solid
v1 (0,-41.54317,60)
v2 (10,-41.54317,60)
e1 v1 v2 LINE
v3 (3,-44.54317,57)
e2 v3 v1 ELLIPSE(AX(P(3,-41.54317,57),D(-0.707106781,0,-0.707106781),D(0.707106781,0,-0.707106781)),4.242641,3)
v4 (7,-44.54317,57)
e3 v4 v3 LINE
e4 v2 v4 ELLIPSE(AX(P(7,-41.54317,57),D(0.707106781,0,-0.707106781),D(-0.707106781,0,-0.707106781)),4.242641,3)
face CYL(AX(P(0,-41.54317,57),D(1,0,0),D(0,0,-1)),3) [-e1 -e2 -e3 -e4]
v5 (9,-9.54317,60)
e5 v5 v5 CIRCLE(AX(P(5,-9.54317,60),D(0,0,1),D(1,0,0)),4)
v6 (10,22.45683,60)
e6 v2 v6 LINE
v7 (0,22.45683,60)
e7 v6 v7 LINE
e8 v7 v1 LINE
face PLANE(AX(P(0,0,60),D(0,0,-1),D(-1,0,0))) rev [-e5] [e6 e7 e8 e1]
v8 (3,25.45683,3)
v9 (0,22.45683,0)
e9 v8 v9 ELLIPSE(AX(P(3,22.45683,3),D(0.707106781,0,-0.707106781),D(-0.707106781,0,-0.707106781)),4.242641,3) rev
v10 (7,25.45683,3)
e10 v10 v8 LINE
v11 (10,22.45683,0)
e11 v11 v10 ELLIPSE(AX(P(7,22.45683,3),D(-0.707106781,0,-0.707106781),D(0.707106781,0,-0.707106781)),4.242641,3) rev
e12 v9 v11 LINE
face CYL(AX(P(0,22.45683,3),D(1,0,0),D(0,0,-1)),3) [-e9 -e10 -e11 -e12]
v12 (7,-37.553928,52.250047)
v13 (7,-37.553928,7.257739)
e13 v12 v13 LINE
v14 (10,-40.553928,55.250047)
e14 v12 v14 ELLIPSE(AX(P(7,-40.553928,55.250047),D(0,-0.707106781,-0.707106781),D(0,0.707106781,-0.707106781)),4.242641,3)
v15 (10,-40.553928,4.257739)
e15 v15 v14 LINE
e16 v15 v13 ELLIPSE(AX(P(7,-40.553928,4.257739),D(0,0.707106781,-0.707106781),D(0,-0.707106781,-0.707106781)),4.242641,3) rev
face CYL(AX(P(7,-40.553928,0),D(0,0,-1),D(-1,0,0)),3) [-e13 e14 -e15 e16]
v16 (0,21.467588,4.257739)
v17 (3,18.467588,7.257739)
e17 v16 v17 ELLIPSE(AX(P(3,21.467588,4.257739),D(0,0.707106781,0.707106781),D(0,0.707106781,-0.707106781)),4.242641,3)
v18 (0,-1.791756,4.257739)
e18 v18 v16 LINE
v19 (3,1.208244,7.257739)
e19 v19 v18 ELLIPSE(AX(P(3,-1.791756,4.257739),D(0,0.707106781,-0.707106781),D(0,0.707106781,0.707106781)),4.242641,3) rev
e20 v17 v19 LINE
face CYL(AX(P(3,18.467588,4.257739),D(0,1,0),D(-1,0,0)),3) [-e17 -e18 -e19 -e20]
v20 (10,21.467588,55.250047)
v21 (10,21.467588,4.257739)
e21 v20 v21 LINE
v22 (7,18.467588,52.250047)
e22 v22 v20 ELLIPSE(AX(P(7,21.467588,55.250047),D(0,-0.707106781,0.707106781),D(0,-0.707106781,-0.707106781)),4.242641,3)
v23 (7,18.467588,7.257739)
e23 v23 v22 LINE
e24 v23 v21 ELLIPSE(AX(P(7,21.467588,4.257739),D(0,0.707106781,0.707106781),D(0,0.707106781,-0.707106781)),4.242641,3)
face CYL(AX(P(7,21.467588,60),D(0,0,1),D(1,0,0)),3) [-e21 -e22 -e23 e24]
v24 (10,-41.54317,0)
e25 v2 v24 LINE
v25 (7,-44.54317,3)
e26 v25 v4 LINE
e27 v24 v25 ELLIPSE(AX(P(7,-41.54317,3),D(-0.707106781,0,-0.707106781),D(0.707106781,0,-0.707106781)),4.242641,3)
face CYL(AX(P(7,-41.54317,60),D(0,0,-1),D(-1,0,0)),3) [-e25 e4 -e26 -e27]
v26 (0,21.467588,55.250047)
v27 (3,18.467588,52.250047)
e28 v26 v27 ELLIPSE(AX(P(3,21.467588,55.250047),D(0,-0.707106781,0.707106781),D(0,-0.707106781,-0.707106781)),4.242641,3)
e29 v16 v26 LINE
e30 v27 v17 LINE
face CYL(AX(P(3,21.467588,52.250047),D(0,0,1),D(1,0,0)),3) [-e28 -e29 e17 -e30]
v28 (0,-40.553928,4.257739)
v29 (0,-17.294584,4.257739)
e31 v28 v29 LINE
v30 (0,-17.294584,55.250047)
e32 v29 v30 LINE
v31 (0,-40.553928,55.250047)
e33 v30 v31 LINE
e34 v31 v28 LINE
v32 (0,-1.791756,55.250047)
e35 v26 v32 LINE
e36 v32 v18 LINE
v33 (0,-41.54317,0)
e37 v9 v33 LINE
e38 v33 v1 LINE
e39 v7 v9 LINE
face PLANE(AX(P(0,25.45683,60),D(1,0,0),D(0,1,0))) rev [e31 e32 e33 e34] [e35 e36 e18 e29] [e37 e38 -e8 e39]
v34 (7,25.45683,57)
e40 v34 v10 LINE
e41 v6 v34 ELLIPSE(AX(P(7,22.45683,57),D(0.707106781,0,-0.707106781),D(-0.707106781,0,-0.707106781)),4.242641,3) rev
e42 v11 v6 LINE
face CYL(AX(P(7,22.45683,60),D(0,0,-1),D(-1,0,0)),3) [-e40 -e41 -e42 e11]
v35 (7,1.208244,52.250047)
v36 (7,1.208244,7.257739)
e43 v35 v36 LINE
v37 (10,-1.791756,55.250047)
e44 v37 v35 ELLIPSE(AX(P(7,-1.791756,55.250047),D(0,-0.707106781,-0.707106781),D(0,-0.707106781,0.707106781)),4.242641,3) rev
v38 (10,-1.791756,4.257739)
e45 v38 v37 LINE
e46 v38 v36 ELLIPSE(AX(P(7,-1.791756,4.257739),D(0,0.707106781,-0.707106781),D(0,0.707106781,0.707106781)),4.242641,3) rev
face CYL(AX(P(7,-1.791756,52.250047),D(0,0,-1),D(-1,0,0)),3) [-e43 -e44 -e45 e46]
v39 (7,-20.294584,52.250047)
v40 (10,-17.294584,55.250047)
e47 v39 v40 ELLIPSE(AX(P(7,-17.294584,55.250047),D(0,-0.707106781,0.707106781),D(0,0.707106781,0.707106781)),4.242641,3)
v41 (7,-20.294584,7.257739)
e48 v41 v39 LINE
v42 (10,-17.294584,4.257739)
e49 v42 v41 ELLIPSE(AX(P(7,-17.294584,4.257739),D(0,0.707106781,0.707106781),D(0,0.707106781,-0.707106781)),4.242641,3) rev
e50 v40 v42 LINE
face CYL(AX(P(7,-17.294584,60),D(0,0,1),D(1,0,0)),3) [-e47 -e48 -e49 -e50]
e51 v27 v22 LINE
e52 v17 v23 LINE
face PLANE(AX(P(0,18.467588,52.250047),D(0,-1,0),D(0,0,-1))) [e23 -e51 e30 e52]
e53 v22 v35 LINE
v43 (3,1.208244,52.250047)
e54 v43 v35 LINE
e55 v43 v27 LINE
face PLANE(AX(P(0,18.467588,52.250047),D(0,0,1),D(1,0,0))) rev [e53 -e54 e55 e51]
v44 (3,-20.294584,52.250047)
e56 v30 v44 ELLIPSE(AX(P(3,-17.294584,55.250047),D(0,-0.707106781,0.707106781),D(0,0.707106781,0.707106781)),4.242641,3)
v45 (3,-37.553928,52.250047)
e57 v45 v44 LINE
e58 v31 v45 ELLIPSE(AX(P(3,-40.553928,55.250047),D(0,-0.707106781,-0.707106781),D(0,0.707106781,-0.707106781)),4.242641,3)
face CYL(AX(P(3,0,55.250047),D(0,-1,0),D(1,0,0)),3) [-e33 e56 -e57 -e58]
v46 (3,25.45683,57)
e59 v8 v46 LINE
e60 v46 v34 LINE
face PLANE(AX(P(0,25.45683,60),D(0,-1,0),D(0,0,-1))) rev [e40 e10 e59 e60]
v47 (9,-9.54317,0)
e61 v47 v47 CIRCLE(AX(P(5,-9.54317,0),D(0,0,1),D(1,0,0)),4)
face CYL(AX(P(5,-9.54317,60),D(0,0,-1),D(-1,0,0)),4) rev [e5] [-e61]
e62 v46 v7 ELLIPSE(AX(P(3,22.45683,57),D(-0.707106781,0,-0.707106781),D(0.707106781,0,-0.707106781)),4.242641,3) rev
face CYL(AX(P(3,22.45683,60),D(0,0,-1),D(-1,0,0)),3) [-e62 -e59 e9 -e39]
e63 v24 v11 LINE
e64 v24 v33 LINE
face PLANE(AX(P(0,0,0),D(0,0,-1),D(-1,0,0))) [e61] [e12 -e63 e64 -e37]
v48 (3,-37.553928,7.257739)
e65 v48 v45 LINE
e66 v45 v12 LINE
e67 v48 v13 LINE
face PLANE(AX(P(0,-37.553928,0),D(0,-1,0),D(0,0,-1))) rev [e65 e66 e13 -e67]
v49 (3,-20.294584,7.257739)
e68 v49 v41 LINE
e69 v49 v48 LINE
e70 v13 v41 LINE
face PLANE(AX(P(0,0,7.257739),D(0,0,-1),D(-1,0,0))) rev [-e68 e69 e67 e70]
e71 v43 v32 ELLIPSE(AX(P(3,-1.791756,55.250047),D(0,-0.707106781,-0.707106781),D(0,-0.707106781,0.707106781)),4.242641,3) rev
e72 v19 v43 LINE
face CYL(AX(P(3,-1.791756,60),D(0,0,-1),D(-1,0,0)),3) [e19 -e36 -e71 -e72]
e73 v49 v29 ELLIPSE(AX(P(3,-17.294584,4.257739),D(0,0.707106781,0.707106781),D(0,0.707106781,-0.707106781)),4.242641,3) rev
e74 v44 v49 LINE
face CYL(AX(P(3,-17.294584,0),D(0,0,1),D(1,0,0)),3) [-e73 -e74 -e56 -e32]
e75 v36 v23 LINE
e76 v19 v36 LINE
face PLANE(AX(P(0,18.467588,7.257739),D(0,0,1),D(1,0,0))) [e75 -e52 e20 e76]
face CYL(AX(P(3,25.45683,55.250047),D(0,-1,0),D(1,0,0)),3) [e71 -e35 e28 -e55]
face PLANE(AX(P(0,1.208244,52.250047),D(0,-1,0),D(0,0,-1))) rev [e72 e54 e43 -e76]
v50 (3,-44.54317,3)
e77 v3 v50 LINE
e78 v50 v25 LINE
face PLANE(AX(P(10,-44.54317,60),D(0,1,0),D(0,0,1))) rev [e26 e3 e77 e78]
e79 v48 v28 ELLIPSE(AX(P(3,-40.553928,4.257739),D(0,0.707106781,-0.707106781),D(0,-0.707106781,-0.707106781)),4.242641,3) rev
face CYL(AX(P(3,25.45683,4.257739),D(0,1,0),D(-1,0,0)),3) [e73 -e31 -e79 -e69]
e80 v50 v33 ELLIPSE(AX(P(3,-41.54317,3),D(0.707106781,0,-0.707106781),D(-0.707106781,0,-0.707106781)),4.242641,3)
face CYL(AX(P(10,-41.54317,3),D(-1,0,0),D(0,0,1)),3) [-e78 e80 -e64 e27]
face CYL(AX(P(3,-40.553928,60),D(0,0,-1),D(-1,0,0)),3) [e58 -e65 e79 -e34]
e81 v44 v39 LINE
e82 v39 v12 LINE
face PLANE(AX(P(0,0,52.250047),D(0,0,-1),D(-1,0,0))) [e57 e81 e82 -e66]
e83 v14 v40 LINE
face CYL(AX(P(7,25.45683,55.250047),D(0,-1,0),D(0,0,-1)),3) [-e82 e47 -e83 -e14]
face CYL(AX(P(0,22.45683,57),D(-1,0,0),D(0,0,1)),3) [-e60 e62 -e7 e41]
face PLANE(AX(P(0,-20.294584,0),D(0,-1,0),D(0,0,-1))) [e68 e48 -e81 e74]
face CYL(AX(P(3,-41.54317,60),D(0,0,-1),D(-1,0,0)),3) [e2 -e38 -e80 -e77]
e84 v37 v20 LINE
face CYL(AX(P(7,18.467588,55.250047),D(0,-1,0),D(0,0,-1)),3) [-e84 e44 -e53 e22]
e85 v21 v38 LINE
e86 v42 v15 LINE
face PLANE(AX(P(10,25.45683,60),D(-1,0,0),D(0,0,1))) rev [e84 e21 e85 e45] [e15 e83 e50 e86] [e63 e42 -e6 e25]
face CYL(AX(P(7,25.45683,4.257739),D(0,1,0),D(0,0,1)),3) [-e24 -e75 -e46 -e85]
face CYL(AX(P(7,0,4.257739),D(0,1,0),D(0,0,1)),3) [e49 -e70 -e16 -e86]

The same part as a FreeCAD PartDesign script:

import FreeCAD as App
import Part
import Sketcher


def edges_at(feature, points):
    """Names of the edges that pass closest to the given points."""
    edges = feature.Shape.Edges
    near = lambda p: min(range(len(edges)), key=lambda i: edges[i].distToShape(Part.Vertex(*p))[0])
    return sorted({f"Edge{near(p) + 1}" for p in points})


def add_polygon(sketch, points):
    """Adds a closed chain of lines whose ends are joined by coincident constraints."""
    first, n = sketch.GeometryCount, len(points)
    for a, b in zip(points, points[1:] + points[:1]):
        sketch.addGeometry(Part.LineSegment(App.Vector(*a, 0), App.Vector(*b, 0)), False)
    for i in range(n):
        sketch.addConstraint(Sketcher.Constraint("Coincident", first + i, 2, first + (i + 1) % n, 1))

doc = App.newDocument("Part")
body = doc.addObject("PartDesign::Body", "Body")

sketch1 = body.newObject("Sketcher::SketchObject", "Sketch")
sketch1.AttachmentSupport = (doc.getObject("XY_Plane"), [""])
sketch1.MapMode = "FlatFace"
add_polygon(sketch1, [(0, 25.5), (0, -44.5), (10, -44.5), (10, 25.5)])
sketch1.addGeometry(Part.Circle(App.Vector(5, -9.5, 0), App.Vector(0, 0, 1), 4), False)
sketch1.addConstraint([
    Sketcher.Constraint("Vertical", 0),
    Sketcher.Constraint("Horizontal", 1),
    Sketcher.Constraint("Vertical", 2),
    Sketcher.Constraint("Horizontal", 3),
    Sketcher.Constraint("PointOnObject", 0, 2, -2),
    Sketcher.Constraint("Diameter", 4, 8.0),
    Sketcher.Constraint("DistanceX", 1, 1, 1, 2, 10.0),
    Sketcher.Constraint("DistanceY", 0, 2, 0, 1, 70.0),
    Sketcher.Constraint("DistanceX", -1, 1, 4, 3, 5.0),
    Sketcher.Constraint("DistanceY", 0, 2, 4, 3, 35.0),
    Sketcher.Constraint("DistanceY", 4, 3, -1, 1, 9.54317),
])
pad1 = body.newObject("PartDesign::Pad", "Pad")
pad1.Profile = sketch1
pad1.Length = 60

sketch2 = body.newObject("Sketcher::SketchObject", "Sketch001")
sketch2.AttachmentSupport = (doc.getObject("YZ_Plane"), [""])
sketch2.MapMode = "FlatFace"
sketch2.AttachmentOffset = App.Placement(App.Vector(0, 0, 10), App.Rotation())
add_polygon(sketch2, [(-20, 52), (-38, 52), (-38, 7), (-20, 7)])
add_polygon(sketch2, [(18, 52), (1, 52), (1, 7), (18, 7)])
sketch2.addConstraint([
    Sketcher.Constraint("Horizontal", 0),
    Sketcher.Constraint("Vertical", 1),
    Sketcher.Constraint("Horizontal", 2),
    Sketcher.Constraint("Vertical", 3),
    Sketcher.Constraint("Horizontal", 4),
    Sketcher.Constraint("Vertical", 5),
    Sketcher.Constraint("Horizontal", 6),
    Sketcher.Constraint("Vertical", 7),
    Sketcher.Constraint("Horizontal", 3, 2, 4, 2),
    Sketcher.Constraint("Horizontal", 2, 2, 5, 2),
    Sketcher.Constraint("Equal", 2, 4),
    Sketcher.Constraint("DistanceY", 1, 2, 1, 1, 44.992308),
    Sketcher.Constraint("DistanceX", 0, 2, 0, 1, 17.259345),
    Sketcher.Constraint("DistanceX", 0, 2, -1, 1, 37.553928),
    Sketcher.Constraint("DistanceY", -1, 1, 1, 2, 7.257739),
    Sketcher.Constraint("DistanceX", -1, 1, 6, 2, 18.467588),
])
pocket1 = body.newObject("PartDesign::Pocket", "Pocket")
pocket1.Profile = sketch2
pocket1.Type = "ThroughAll"
doc.recompute()

fillet = body.newObject("PartDesign::Fillet", "Fillet")
fillet.Base = (pocket1, edges_at(pocket1, [
    (5, -44.543, 60),
    (10, -28.924, 52.25),
    (10, -20.295, 29.754),
    (0, -28.924, 7.258),
    (0, -37.554, 29.754),
    (0, -28.924, 52.25),
    (0, -20.295, 29.754),
    (10, -37.554, 29.754),
    (10, -28.924, 7.258),
    (10, 18.468, 29.754),
    (10, 9.838, 7.258),
    (0, 1.208, 29.754),
    (0, 9.838, 52.25),
    (0, 18.468, 29.754),
    (0, 9.838, 7.258),
    (10, 9.838, 52.25),
    (10, 1.208, 29.754),
    (5, 25.457, 60),
    (5, -44.543, 0),
    (5, 25.457, 0),
    (10, 25.457, 30),
    (10, -44.543, 30),
    (0, -44.543, 30),
    (0, 25.457, 30),
]))
fillet.Radius = 3

doc.recompute()
